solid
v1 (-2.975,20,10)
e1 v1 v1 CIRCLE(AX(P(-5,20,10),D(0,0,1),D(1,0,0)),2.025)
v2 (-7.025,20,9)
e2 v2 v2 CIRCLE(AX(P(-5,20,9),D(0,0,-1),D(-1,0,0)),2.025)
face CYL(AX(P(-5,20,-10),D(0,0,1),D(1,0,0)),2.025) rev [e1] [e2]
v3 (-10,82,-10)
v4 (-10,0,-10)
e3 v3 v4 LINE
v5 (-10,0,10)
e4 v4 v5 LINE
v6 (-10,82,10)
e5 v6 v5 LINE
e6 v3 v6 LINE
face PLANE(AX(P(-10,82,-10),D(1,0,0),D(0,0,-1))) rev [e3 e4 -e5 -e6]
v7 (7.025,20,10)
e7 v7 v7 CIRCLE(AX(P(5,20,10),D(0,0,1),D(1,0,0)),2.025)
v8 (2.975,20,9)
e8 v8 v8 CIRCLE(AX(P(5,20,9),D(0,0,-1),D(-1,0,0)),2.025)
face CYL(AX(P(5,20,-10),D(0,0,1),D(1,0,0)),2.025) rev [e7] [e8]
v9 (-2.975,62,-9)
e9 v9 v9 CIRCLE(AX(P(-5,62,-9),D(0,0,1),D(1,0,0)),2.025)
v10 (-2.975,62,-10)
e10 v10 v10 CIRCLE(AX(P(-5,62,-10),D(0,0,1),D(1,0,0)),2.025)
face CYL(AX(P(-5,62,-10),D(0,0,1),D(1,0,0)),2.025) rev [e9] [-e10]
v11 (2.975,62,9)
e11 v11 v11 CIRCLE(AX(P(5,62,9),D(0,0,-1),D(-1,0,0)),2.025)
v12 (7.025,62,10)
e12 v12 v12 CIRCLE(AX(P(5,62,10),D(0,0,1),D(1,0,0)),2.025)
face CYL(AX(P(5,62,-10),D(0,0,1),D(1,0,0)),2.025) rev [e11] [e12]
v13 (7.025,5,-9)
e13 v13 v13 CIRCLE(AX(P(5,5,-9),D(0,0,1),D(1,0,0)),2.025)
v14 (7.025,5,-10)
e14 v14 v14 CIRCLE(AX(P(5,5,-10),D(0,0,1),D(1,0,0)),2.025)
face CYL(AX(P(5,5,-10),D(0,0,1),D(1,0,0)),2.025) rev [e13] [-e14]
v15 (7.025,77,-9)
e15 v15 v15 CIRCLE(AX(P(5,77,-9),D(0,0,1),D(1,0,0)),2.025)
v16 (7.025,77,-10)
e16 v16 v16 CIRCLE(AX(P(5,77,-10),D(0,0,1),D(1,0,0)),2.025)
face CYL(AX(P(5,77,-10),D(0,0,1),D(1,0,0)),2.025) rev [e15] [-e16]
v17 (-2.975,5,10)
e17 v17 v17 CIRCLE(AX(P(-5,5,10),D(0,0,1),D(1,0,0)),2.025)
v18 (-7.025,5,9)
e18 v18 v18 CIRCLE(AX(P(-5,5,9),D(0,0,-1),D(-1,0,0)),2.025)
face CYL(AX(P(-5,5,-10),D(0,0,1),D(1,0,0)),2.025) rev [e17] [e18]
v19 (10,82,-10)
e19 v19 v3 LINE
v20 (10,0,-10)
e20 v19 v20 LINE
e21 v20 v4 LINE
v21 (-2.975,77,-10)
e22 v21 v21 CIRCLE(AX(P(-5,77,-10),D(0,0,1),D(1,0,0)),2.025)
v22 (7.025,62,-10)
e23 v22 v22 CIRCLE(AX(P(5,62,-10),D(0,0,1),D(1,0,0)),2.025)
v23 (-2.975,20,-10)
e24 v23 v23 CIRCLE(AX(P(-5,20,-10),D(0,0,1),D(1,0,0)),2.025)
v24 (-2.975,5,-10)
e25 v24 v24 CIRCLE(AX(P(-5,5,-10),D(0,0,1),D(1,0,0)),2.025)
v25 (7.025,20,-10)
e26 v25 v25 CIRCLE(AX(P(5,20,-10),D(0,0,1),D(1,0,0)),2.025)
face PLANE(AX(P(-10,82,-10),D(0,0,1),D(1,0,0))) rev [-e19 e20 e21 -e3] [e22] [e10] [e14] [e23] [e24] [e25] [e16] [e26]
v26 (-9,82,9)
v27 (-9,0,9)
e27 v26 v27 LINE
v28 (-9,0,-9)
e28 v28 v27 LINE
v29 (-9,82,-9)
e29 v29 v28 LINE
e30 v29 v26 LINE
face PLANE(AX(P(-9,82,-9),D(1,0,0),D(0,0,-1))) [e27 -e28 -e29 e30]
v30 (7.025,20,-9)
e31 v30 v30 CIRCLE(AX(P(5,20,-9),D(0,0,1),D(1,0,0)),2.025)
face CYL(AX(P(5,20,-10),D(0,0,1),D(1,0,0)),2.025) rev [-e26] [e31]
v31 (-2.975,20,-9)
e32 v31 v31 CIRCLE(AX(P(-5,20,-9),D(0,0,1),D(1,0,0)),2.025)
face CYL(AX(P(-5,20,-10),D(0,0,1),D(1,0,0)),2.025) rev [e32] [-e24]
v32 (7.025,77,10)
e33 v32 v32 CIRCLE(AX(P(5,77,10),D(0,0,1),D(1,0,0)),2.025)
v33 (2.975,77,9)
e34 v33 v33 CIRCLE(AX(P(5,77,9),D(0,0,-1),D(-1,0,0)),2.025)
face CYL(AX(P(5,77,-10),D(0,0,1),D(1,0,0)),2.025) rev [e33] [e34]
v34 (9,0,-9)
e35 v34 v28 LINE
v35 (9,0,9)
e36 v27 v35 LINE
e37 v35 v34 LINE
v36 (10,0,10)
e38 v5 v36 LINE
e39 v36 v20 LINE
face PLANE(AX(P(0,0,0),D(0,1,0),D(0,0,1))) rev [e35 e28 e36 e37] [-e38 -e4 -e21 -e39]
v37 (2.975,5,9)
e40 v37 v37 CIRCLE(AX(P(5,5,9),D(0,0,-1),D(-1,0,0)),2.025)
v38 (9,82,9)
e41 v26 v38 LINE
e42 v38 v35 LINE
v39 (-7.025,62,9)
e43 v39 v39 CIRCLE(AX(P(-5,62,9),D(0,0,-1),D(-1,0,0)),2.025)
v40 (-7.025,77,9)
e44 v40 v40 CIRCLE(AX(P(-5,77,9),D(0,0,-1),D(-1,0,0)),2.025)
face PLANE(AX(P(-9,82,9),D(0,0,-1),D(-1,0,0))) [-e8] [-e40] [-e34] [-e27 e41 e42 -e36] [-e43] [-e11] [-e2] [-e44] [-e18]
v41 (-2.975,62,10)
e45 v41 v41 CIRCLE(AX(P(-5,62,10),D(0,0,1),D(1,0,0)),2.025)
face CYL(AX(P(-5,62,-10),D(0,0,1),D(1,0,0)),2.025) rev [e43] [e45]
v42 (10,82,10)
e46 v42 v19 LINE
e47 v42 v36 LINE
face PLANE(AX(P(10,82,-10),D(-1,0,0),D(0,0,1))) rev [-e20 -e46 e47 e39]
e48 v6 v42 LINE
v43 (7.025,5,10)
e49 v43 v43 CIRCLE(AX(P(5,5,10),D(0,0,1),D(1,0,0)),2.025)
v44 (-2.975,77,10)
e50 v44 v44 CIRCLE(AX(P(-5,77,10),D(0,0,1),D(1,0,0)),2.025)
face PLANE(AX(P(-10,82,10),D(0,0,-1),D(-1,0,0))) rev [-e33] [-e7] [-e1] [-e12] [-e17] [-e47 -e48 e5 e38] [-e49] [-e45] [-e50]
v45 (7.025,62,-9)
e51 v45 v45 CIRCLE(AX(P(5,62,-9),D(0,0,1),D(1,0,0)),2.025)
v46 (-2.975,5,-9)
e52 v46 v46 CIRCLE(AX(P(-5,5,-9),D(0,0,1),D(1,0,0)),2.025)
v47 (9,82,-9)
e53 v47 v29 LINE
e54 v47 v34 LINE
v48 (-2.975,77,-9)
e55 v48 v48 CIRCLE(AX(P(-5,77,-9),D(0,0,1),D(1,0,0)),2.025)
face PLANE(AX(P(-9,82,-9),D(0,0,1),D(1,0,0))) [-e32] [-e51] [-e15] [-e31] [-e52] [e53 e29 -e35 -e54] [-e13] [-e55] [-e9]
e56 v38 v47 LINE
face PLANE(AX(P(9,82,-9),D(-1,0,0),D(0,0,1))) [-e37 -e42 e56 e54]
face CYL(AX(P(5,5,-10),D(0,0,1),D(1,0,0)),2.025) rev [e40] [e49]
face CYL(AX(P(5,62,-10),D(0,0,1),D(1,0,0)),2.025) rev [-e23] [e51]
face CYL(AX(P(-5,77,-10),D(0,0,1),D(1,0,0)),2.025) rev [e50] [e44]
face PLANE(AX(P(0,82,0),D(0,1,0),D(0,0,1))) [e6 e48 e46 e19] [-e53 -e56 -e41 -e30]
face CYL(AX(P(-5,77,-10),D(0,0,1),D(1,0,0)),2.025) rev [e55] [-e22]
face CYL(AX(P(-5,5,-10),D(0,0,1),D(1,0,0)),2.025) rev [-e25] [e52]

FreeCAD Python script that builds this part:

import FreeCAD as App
import Part
import Sketcher
from FreeCAD import Vector

doc = App.newDocument("Part")
body = doc.addObject("PartDesign::Body", "Body")

# Sketch on XZ plane
sketch1 = body.newObject("Sketcher::SketchObject", "Sketch")
sketch1.AttachmentSupport = (doc.getObject("XZ_Plane"), [""])
sketch1.MapMode = "FlatFace"
sketch1.addGeometry([
    Part.LineSegment(Vector(-10, -10, 0), Vector(-10, 10, 0)),  # 0
    Part.LineSegment(Vector(-10, 10, 0), Vector(10, 10, 0)),  # 1
    Part.LineSegment(Vector(10, 10, 0), Vector(10, -10, 0)),  # 2
    Part.LineSegment(Vector(10, -10, 0), Vector(-10, -10, 0)),  # 3
    Part.LineSegment(Vector(9, 9, 0), Vector(-9, 9, 0)),  # 4
    Part.LineSegment(Vector(-9, 9, 0), Vector(-9, -9, 0)),  # 5
    Part.LineSegment(Vector(-9, -9, 0), Vector(9, -9, 0)),  # 6
    Part.LineSegment(Vector(9, -9, 0), Vector(9, 9, 0)),  # 7
], False)
sketch1.addConstraint([
    Sketcher.Constraint("Coincident", 0, 2, 1, 1),
    Sketcher.Constraint("Coincident", 1, 2, 2, 1),
    Sketcher.Constraint("Coincident", 2, 2, 3, 1),
    Sketcher.Constraint("Coincident", 3, 2, 0, 1),
    Sketcher.Constraint("Coincident", 4, 2, 5, 1),
    Sketcher.Constraint("Coincident", 5, 2, 6, 1),
    Sketcher.Constraint("Coincident", 6, 2, 7, 1),
    Sketcher.Constraint("Coincident", 7, 2, 4, 1),
    Sketcher.Constraint("Vertical", 0),
    Sketcher.Constraint("Horizontal", 1),
    Sketcher.Constraint("Vertical", 2),
    Sketcher.Constraint("Horizontal", 3),
    Sketcher.Constraint("Horizontal", 4),
    Sketcher.Constraint("Vertical", 5),
    Sketcher.Constraint("Horizontal", 6),
    Sketcher.Constraint("Vertical", 7),
    Sketcher.Constraint("Symmetric", 0, 2, 2, 2, -1, 1),
    Sketcher.Constraint("Symmetric", 4, 2, 6, 2, -1, 1),
    Sketcher.Constraint("Equal", 3, 0),
    Sketcher.Constraint("Equal", 6, 5),
    Sketcher.Constraint("DistanceX", 1, 1, 1, 2, 20.0),
    Sketcher.Constraint("DistanceX", 4, 2, 4, 1, 18.0),
])
pad1 = body.newObject("PartDesign::Pad", "Pad")
pad1.Profile = sketch1
pad1.Length = 82
pad1.Reversed = True

# Sketch on XY plane
sketch2 = body.newObject("Sketcher::SketchObject", "Sketch001")
sketch2.AttachmentSupport = (doc.getObject("XY_Plane"), [""])
sketch2.MapMode = "FlatFace"
sketch2.AttachmentOffset = App.Placement(Vector(0, 0, 10), App.Rotation())
sketch2.addGeometry([
    Part.Circle(Vector(-5, 5, 0), Vector(0, 0, 1), 2),  # 0
    Part.Circle(Vector(-5, 20, 0), Vector(0, 0, 1), 2),  # 1
    Part.Circle(Vector(5, 20, 0), Vector(0, 0, 1), 2),  # 2
    Part.Circle(Vector(5, 5, 0), Vector(0, 0, 1), 2),  # 3
    Part.Circle(Vector(5, 77, 0), Vector(0, 0, 1), 2),  # 4
    Part.Circle(Vector(-5, 77, 0), Vector(0, 0, 1), 2),  # 5
    Part.Circle(Vector(-5, 62, 0), Vector(0, 0, 1), 2),  # 6
    Part.Circle(Vector(5, 62, 0), Vector(0, 0, 1), 2),  # 7
], False)
sketch2.addConstraint([
    Sketcher.Constraint("Equal", 0, 1),
    Sketcher.Constraint("Equal", 1, 2),
    Sketcher.Constraint("Equal", 2, 3),
    Sketcher.Constraint("Equal", 3, 4),
    Sketcher.Constraint("Equal", 4, 5),
    Sketcher.Constraint("Equal", 5, 6),
    Sketcher.Constraint("Equal", 6, 7),
    Sketcher.Constraint("Symmetric", 1, 3, 2, 3, -2),
    Sketcher.Constraint("Symmetric", 0, 3, 3, 3, -2),
    Sketcher.Constraint("Symmetric", 4, 3, 5, 3, -2),
    Sketcher.Constraint("Symmetric", 6, 3, 7, 3, -2),
    Sketcher.Constraint("Vertical", 0, 3, 1, 3),
    Sketcher.Constraint("Vertical", 3, 3, 4, 3),
    Sketcher.Constraint("Vertical", 5, 3, 6, 3),
    Sketcher.Constraint("Diameter", 0, 4.05),
    Sketcher.Constraint("DistanceX", 0, 3, -1, 1, 5.0),
    Sketcher.Constraint("DistanceY", -1, 1, 0, 3, 5.0),
    Sketcher.Constraint("DistanceY", -1, 1, 1, 3, 20.0),
    Sketcher.Constraint("DistanceY", -1, 1, 4, 3, 77.0),
    Sketcher.Constraint("DistanceY", -1, 1, 6, 3, 62.0),
])
pocket1 = body.newObject("PartDesign::Pocket", "Pocket")
pocket1.Profile = sketch2
pocket1.Type = "ThroughAll"

doc.recompute()
